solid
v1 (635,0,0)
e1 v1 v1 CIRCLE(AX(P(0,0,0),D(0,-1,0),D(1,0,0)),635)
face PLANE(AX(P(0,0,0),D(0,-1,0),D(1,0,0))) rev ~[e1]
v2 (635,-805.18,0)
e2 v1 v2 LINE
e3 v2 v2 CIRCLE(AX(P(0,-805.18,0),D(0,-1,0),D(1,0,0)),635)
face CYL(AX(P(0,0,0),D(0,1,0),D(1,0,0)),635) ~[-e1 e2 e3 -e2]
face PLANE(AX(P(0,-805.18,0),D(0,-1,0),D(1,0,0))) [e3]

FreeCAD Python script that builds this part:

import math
import FreeCAD as App
import Part
import Sketcher

V = App.Vector
Q = App.Units.Quantity

doc = App.newDocument("Part")
params = doc.addObject("Spreadsheet::Sheet", "Params")
for row, (alias, value) in enumerate([
    ("sketch1_radius", "1.5 in"),
    ("pad1_length", "2.69 in"),
    ("sketch2_radius", "1.5 in"),
    ("pad2_length", "1 in"),
    ("sketch3_diameter", "50 in"),
    ("pad3_length", "31.7 in"),
], start=1):
    params.set(f"A{row}", alias)
    params.set(f"B{row}", "=" + value)
    params.setAlias(f"B{row}", alias)

body = doc.addObject("PartDesign::Body", "Body")

sketch1 = body.newObject("Sketcher::SketchObject", "Sketch")
sketch1.AttachmentSupport = (doc.getObject("XZ_Plane"), [""])
sketch1.MapMode = "FlatFace"
sketch1.addGeometry([
    Part.LineSegment(V(35.5, 0, 0), V(35.5, 2.7, 0)),
    Part.ArcOfCircle(Part.Circle(V(37.3, 7.8, 0), V(0, 0, 1), 5.3), math.radians(110), math.radians(250)),
    Part.LineSegment(V(35.5, 12.8, 0), V(35.5, 13.8, 0)),
    Part.ArcOfCircle(Part.Circle(V(0, 0, 0), V(0, 0, 1), 38.1), math.radians(21.18), math.radians(31.55)),
    Part.LineSegment(V(32.5, 19.9, 0), V(0, 19.9, 0)),
    Part.LineSegment(V(0, 19.9, 0), V(-29.6, -9.5, 0)),
    Part.LineSegment(V(-29.6, -9.5, 0), V(-29.6, -20.4, 0)),
    Part.LineSegment(V(-29.6, -20.4, 0), V(17.2, -20.4, 0)),
    Part.LineSegment(V(17.2, -20.4, 0), V(17.2, -9.5, 0)),
    Part.LineSegment(V(17.2, -9.5, 0), V(35.5, 0, 0)),
], False)
sketch1.addConstraint([
    Sketcher.Constraint("Coincident", 0, 2, 1, 2),
    Sketcher.Constraint("Coincident", 1, 1, 2, 1),
    Sketcher.Constraint("Coincident", 2, 2, 3, 1),
    Sketcher.Constraint("Coincident", 3, 2, 4, 1),
    Sketcher.Constraint("Coincident", 4, 2, 5, 1),
    Sketcher.Constraint("Coincident", 5, 2, 6, 1),
    Sketcher.Constraint("Coincident", 6, 2, 7, 1),
    Sketcher.Constraint("Coincident", 7, 2, 8, 1),
    Sketcher.Constraint("Coincident", 8, 2, 9, 1),
    Sketcher.Constraint("Coincident", 9, 2, 0, 1),
    Sketcher.Constraint("Vertical", 0),
    Sketcher.Constraint("Vertical", 2),
    Sketcher.Constraint("Horizontal", 4),
    Sketcher.Constraint("Vertical", 6),
    Sketcher.Constraint("Horizontal", 7),
    Sketcher.Constraint("Vertical", 8),
    Sketcher.Constraint("Coincident", 3, 3, -1, 1),
    Sketcher.Constraint("PointOnObject", 4, 2, -2),
    Sketcher.Constraint("PointOnObject", 9, 2, -1),
    Sketcher.Constraint("Horizontal", 5, 2, 8, 2),
    Sketcher.Constraint("Vertical", 0, 2, 1, 1),
    Sketcher.Constraint("Radius", 3, Q("1.5 in")),
    Sketcher.Constraint("Radius", 1, Q("5.308678 mm")),
    Sketcher.Constraint("DistanceX", 4, 2, 4, 1, Q("32.468562 mm")),
    Sketcher.Constraint("DistanceY", 2, 1, 2, 2, Q("1.012651 mm")),
    Sketcher.Constraint("DistanceY", 6, 2, 6, 1, Q("10.85951 mm")),
    Sketcher.Constraint("DistanceY", 1, 3, 3, 2, Q("12.183899 mm")),
    Sketcher.Constraint("DistanceY", 5, 2, 1, 1, Q("22.2943 mm")),
    Sketcher.Constraint("Distance", 5, Q("41.794931 mm")),
    Sketcher.Constraint("DistanceX", 7, 1, 7, 2, Q("46.851023 mm")),
    Sketcher.Constraint("DistanceY", 0, 1, 0, 2, Q("2.748667 mm")),
])
sketch1.setExpression("Constraints[21]", "Params.sketch1_radius")
pad1 = body.newObject("PartDesign::Pad", "Pad")
pad1.Profile = sketch1
pad1.setExpression("Length", "Params.pad1_length")

sketch2 = body.newObject("Sketcher::SketchObject", "Sketch001")
sketch2.AttachmentSupport = (doc.getObject("XZ_Plane"), [""])
sketch2.MapMode = "FlatFace"
sketch2.addGeometry([
    Part.ArcOfCircle(Part.Circle(V(0, 0, 0), V(0, 0, 1), 38.1), math.radians(19.73), math.radians(21.18)),
    Part.LineSegment(V(35.5, 13.8, 0), V(35.5, 19.9, 0)),
    Part.LineSegment(V(35.5, 19.9, 0), V(32.5, 19.9, 0)),
    Part.ArcOfCircle(Part.Circle(V(0, 0, 0), V(0, 0, 1), 38.1), math.radians(32), math.radians(360)),
    Part.ArcOfCircle(Part.Circle(V(0, 0, 0), V(0, 0, 1), 38.1), math.radians(0), math.radians(3.75)),
    Part.ArcOfCircle(Part.Circle(V(37.3, 7.8, 0), V(0, 0, 1), 5.3), math.radians(-82), math.radians(0)),
    Part.ArcOfCircle(Part.Circle(V(37.3, 7.8, 0), V(0, 0, 1), 5.3), math.radians(0), math.radians(106)),
    Part.LineSegment(V(0, 19.9, 0), V(0, 0, 0)),
    Part.LineSegment(V(0, 0, 0), V(35.5, 0, 0)),
    Part.LineSegment(V(35.5, 0, 0), V(17.2, -9.5, 0)),
    Part.LineSegment(V(17.2, -9.5, 0), V(17.2, -20.4, 0)),
    Part.LineSegment(V(17.2, -20.4, 0), V(-29.6, -20.4, 0)),
    Part.LineSegment(V(-29.6, -20.4, 0), V(-29.6, -9.5, 0)),
    Part.LineSegment(V(-29.6, -9.5, 0), V(0, 19.9, 0)),
    Part.ArcOfCircle(Part.Circle(V(37.3, 7.8, 0), V(0, 0, 1), 5.3), math.radians(110), math.radians(250)),
    Part.LineSegment(V(35.5, 12.8, 0), V(35.5, 2.7, 0)),
], False)
sketch2.addConstraint([
    Sketcher.Constraint("Coincident", 0, 2, 1, 1),
    Sketcher.Constraint("Coincident", 1, 2, 2, 1),
    Sketcher.Constraint("Coincident", 2, 2, 3, 1),
    Sketcher.Constraint("Tangent", 3, 2, 4, 1),
    Sketcher.Constraint("Coincident", 4, 2, 5, 1),
    Sketcher.Constraint("Tangent", 5, 2, 6, 1),
    Sketcher.Constraint("Coincident", 6, 2, 0, 1),
    Sketcher.Constraint("Coincident", 7, 2, 8, 1),
    Sketcher.Constraint("Coincident", 8, 2, 9, 1),
    Sketcher.Constraint("Coincident", 9, 2, 10, 1),
    Sketcher.Constraint("Coincident", 10, 2, 11, 1),
    Sketcher.Constraint("Coincident", 11, 2, 12, 1),
    Sketcher.Constraint("Coincident", 12, 2, 13, 1),
    Sketcher.Constraint("Coincident", 13, 2, 7, 1),
    Sketcher.Constraint("Coincident", 14, 1, 15, 1),
    Sketcher.Constraint("Coincident", 15, 2, 14, 2),
    Sketcher.Constraint("Vertical", 1),
    Sketcher.Constraint("Horizontal", 2),
    Sketcher.Constraint("Vertical", 7),
    Sketcher.Constraint("Horizontal", 8),
    Sketcher.Constraint("Vertical", 10),
    Sketcher.Constraint("Horizontal", 11),
    Sketcher.Constraint("Vertical", 12),
    Sketcher.Constraint("Vertical", 15),
    Sketcher.Constraint("Coincident", 0, 3, -1, 1),
    Sketcher.Constraint("Coincident", 3, 3, -1, 1),
    Sketcher.Constraint("Coincident", 7, 2, -1, 1),
    Sketcher.Constraint("Coincident", 14, 3, 5, 3),
    Sketcher.Constraint("Equal", 0, 3),
    Sketcher.Constraint("Equal", 3, 4),
    Sketcher.Constraint("Equal", 5, 6),
    Sketcher.Constraint("Equal", 6, 14),
    Sketcher.Constraint("PointOnObject", 3, 2, -1),
    Sketcher.Constraint("Horizontal", 14, 3, 5, 2),
    Sketcher.Constraint("Horizontal", 9, 2, 12, 2),
    Sketcher.Constraint("Horizontal", 2, 2, 13, 2),
    Sketcher.Constraint("Vertical", 1, 2, 8, 2),
    Sketcher.Constraint("Vertical", 8, 2, 14, 1),
    Sketcher.Constraint("Radius", 0, Q("1.5 in")),
    Sketcher.Constraint("Radius", 5, Q("5.308678 mm")),
    Sketcher.Constraint("DistanceX", 2, 2, 2, 1, Q("3.057549 mm")),
    Sketcher.Constraint("DistanceX", 8, 1, 8, 2, Q("35.526111 mm")),
    Sketcher.Constraint("DistanceY", 10, 2, 10, 1, Q("10.85951 mm")),
    Sketcher.Constraint("DistanceY", 15, 2, 15, 1, Q("10.00478 mm")),
    Sketcher.Constraint("DistanceY", 5, 3, 1, 2, Q("12.183899 mm")),
    Sketcher.Constraint("Distance", 13, Q("41.794931 mm")),
    Sketcher.Constraint("DistanceX", 11, 2, 11, 1, Q("46.851023 mm")),
    Sketcher.Constraint("DistanceX", -1, 1, 9, 2, Q("17.220078 mm")),
])
sketch2.setExpression("Constraints[38]", "Params.sketch2_radius")
pad2 = body.newObject("PartDesign::Pad", "Pad001")
pad2.Profile = sketch2
pad2.setExpression("Length", "Params.pad2_length")
body2 = doc.addObject("PartDesign::Body", "Body001")

sketch3 = body2.newObject("Sketcher::SketchObject", "Sketch002")
sketch3.AttachmentSupport = (doc.getObject("XZ_Plane001"), [""])
sketch3.MapMode = "FlatFace"
sketch3.addGeometry(Part.Circle(V(0, 0, 0), V(0, 0, 1), 635), False)
sketch3.addConstraint([
    Sketcher.Constraint("Coincident", 0, 3, -1, 1),
    Sketcher.Constraint("Diameter", 0, Q("50 in")),
])
sketch3.setExpression("Constraints[1]", "Params.sketch3_diameter")
pad3 = body2.newObject("PartDesign::Pad", "Pad002")
pad3.Profile = sketch3
pad3.setExpression("Length", "Params.pad3_length")
body.Visibility = False

doc.recompute()
